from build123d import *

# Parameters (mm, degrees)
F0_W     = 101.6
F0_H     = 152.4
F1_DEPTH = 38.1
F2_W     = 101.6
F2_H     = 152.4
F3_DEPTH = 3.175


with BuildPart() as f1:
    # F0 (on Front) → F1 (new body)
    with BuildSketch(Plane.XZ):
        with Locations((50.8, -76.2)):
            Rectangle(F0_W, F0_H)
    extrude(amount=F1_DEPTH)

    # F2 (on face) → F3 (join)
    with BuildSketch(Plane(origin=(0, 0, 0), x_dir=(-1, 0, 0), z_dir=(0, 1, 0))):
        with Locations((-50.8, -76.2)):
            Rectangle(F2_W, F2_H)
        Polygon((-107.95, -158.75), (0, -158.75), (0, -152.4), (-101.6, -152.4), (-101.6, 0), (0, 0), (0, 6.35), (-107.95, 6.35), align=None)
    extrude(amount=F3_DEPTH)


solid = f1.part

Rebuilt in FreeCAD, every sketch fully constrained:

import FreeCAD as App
import Part
import Sketcher

V = App.Vector
Q = App.Units.Quantity


def add_polygon(sketch, points):
    """Adds a closed chain of lines whose ends are joined by coincident constraints."""
    first, n = sketch.GeometryCount, len(points)
    for a, b in zip(points, points[1:] + points[:1]):
        sketch.addGeometry(Part.LineSegment(App.Vector(*a, 0), App.Vector(*b, 0)), False)
    for i in range(n):
        sketch.addConstraint(Sketcher.Constraint("Coincident", first + i, 2, first + (i + 1) % n, 1))

doc = App.newDocument("Part")
body = doc.addObject("PartDesign::Body", "Body")

# Sketch on XZ plane
sketch1 = doc.addObject("Sketcher::SketchObject", "Sketch")
body.addObject(sketch1)
sketch1.AttachmentSupport = (doc.XZ_Plane, [""])
sketch1.MapMode = "FlatFace"
add_polygon(sketch1, [(0, 0), (0, -152), (102, -152), (102, 0)])  # lines 0-3
sketch1.addConstraint([
    Sketcher.Constraint("Vertical", 0),
    Sketcher.Constraint("Horizontal", 1),
    Sketcher.Constraint("Vertical", 2),
    Sketcher.Constraint("Horizontal", 3),
    Sketcher.Constraint("Coincident", 3, 2, -1, 1),
    Sketcher.Constraint("DistanceX", 1, 1, 1, 2, Q("4 in")),
    Sketcher.Constraint("DistanceY", 0, 2, 0, 1, Q("6 in")),
])
pad1 = doc.addObject("PartDesign::Pad", "Pad")
body.addObject(pad1)
pad1.Profile = sketch1
pad1.Length = Q("1.5 in")

# Sketch on XZ plane
sketch2 = doc.addObject("Sketcher::SketchObject", "Sketch001")
body.addObject(sketch2)
sketch2.AttachmentSupport = (doc.XZ_Plane, [""])
sketch2.MapMode = "FlatFace"
add_polygon(sketch2, [(0, 6), (108, 6), (108, -159), (0, -159)])  # lines 0-3
sketch2.addConstraint([
    Sketcher.Constraint("Horizontal", 0),
    Sketcher.Constraint("Vertical", 1),
    Sketcher.Constraint("Horizontal", 2),
    Sketcher.Constraint("Vertical", 3),
    Sketcher.Constraint("PointOnObject", 2, 2, -2),
    Sketcher.Constraint("DistanceY", 1, 2, 1, 1, Q("6.5 in")),
    Sketcher.Constraint("DistanceX", 0, 1, 0, 2, Q("4.25 in")),
    Sketcher.Constraint("DistanceY", -1, 1, 0, 2, Q("0.25 in")),
])
pad2 = doc.addObject("PartDesign::Pad", "Pad001")
body.addObject(pad2)
pad2.Profile = sketch2
pad2.Length = Q("0.125 in")
pad2.Reversed = True

doc.recompute()
